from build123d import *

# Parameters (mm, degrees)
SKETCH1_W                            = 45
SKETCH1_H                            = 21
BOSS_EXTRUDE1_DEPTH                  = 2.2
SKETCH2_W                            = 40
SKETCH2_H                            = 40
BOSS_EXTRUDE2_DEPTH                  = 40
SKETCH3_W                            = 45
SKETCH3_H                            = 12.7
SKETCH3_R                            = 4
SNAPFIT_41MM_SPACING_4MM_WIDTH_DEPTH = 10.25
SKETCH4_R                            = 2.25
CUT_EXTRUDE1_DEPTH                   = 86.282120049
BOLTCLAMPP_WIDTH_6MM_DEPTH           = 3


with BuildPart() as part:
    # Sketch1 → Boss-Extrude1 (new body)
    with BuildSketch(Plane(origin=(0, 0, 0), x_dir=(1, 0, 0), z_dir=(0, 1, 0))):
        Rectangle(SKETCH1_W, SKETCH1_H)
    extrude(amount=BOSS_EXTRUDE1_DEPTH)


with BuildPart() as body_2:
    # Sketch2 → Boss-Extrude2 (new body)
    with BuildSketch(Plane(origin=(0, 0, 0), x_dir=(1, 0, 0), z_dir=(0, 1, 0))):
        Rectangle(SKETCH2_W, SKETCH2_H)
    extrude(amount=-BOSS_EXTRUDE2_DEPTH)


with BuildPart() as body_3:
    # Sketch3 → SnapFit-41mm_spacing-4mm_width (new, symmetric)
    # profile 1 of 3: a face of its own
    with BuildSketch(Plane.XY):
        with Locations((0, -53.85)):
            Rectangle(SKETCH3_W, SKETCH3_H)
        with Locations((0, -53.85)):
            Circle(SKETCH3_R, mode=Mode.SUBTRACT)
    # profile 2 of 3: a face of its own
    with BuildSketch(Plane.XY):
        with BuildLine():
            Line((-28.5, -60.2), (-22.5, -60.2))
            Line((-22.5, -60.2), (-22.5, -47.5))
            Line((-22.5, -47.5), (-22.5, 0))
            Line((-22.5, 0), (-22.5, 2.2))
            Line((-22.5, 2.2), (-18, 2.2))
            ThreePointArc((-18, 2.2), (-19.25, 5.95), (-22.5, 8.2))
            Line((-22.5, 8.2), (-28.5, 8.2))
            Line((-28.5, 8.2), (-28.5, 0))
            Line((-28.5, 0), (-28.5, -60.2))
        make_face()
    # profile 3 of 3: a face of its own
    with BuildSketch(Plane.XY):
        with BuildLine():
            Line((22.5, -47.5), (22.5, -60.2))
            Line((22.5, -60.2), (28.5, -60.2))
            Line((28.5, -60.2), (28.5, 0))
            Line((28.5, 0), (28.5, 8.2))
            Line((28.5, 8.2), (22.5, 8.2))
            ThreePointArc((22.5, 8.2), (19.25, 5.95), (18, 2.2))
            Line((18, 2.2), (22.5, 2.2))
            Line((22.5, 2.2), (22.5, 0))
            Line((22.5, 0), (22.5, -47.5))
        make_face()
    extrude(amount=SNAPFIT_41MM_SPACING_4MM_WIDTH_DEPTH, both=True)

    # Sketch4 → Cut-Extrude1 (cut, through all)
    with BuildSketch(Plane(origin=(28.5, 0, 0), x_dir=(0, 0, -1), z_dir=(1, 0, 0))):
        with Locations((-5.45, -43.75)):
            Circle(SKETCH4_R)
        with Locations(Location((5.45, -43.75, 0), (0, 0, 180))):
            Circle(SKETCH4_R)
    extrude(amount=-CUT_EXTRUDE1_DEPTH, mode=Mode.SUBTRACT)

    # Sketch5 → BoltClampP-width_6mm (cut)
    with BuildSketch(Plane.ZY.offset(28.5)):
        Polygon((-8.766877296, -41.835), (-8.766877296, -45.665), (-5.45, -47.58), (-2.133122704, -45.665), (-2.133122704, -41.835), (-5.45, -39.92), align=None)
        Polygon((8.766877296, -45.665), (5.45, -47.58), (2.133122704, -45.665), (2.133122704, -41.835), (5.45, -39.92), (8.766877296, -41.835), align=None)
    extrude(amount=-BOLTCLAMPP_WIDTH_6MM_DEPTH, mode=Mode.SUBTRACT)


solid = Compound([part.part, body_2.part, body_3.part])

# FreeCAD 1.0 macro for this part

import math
import FreeCAD as App
import Part
import Sketcher
from FreeCAD import Vector
Q = App.Units.Quantity


def add_polygon(sketch, points):
    """Adds a closed chain of lines whose ends are joined by coincident constraints."""
    first, n = sketch.GeometryCount, len(points)
    for a, b in zip(points, points[1:] + points[:1]):
        sketch.addGeometry(Part.LineSegment(App.Vector(*a, 0), App.Vector(*b, 0)), False)
    for i in range(n):
        sketch.addConstraint(Sketcher.Constraint("Coincident", first + i, 2, first + (i + 1) % n, 1))

doc = App.newDocument("Part")
body = doc.addObject("PartDesign::Body", "Body")

sketch1 = doc.addObject("Sketcher::SketchObject", "Sketch")
body.addObject(sketch1)
sketch1.AttachmentSupport = (doc.XZ_Plane, [""])
sketch1.MapMode = "FlatFace"
add_polygon(sketch1, [(-22, -10), (-22, 10), (22, 10), (22, -10)])
sketch1.addConstraint([
    Sketcher.Constraint("Vertical", 0),
    Sketcher.Constraint("Horizontal", 1),
    Sketcher.Constraint("Vertical", 2),
    Sketcher.Constraint("Horizontal", 3),
    Sketcher.Constraint("Symmetric", 0, 2, 2, 2, -1, 1),
    Sketcher.Constraint("DistanceX", 1, 1, 1, 2, Q("45 mm")),
    Sketcher.Constraint("DistanceY", 0, 1, 0, 2, Q("21 mm")),
])
pad1 = doc.addObject("PartDesign::Pad", "Pad")
body.addObject(pad1)
pad1.Profile = sketch1
pad1.Length = 2.2
pad1.Reversed = True
body2 = doc.addObject("PartDesign::Body", "Body001")

sketch2 = doc.addObject("Sketcher::SketchObject", "Sketch001")
body2.addObject(sketch2)
sketch2.AttachmentSupport = (doc.getObject("XZ_Plane001"), [""])
sketch2.MapMode = "FlatFace"
add_polygon(sketch2, [(-20, -20), (-20, 20), (20, 20), (20, -20)])
sketch2.addConstraint([
    Sketcher.Constraint("Vertical", 0),
    Sketcher.Constraint("Horizontal", 1),
    Sketcher.Constraint("Vertical", 2),
    Sketcher.Constraint("Horizontal", 3),
    Sketcher.Constraint("Symmetric", 0, 2, 2, 2, -1, 1),
    Sketcher.Constraint("Equal", 3, 0),
    Sketcher.Constraint("DistanceX", 1, 1, 1, 2, Q("40 mm")),
])
pad2 = doc.addObject("PartDesign::Pad", "Pad001")
body2.addObject(pad2)
pad2.Profile = sketch2
pad2.Length = 40
body3 = doc.addObject("PartDesign::Body", "Body002")

sketch3 = doc.addObject("Sketcher::SketchObject", "Sketch002")
body3.addObject(sketch3)
sketch3.AttachmentSupport = (doc.getObject("XY_Plane002"), [""])
sketch3.MapMode = "FlatFace"
sketch3.addGeometry([
    Part.LineSegment(Vector(28.5, -60.2, 0), Vector(28.5, 8.2, 0)),
    Part.LineSegment(Vector(28.5, 8.2, 0), Vector(22.5, 8.2, 0)),
    Part.ArcOfCircle(Part.Circle(Vector(24.2, 2.2, 0), Vector(0, 0, 1), 6.2), math.radians(106), math.radians(180)),
    Part.LineSegment(Vector(18, 2.2, 0), Vector(22.5, 2.2, 0)),
    Part.LineSegment(Vector(22.5, 2.2, 0), Vector(22.5, -47.5, 0)),
    Part.LineSegment(Vector(22.5, -47.5, 0), Vector(-22.5, -47.5, 0)),
    Part.LineSegment(Vector(-22.5, -47.5, 0), Vector(-22.5, 2.2, 0)),
    Part.LineSegment(Vector(-22.5, 2.2, 0), Vector(-18, 2.2, 0)),
    Part.ArcOfCircle(Part.Circle(Vector(-24.2, 2.2, 0), Vector(0, 0, 1), 6.2), math.radians(0), math.radians(74)),
    Part.LineSegment(Vector(-22.5, 8.2, 0), Vector(-28.5, 8.2, 0)),
    Part.LineSegment(Vector(-28.5, 8.2, 0), Vector(-28.5, -60.2, 0)),
    Part.LineSegment(Vector(-28.5, -60.2, 0), Vector(28.5, -60.2, 0)),
    Part.Circle(Vector(0, -53.9, 0), Vector(0, 0, 1), 4),
], False)
sketch3.addConstraint([
    Sketcher.Constraint("Coincident", 0, 2, 1, 1),
    Sketcher.Constraint("Coincident", 1, 2, 2, 1),
    Sketcher.Constraint("Coincident", 2, 2, 3, 1),
    Sketcher.Constraint("Coincident", 3, 2, 4, 1),
    Sketcher.Constraint("Coincident", 4, 2, 5, 1),
    Sketcher.Constraint("Coincident", 5, 2, 6, 1),
    Sketcher.Constraint("Coincident", 6, 2, 7, 1),
    Sketcher.Constraint("Coincident", 7, 2, 8, 1),
    Sketcher.Constraint("Coincident", 8, 2, 9, 1),
    Sketcher.Constraint("Coincident", 9, 2, 10, 1),
    Sketcher.Constraint("Coincident", 10, 2, 11, 1),
    Sketcher.Constraint("Coincident", 11, 2, 0, 1),
    Sketcher.Constraint("Vertical", 0),
    Sketcher.Constraint("Horizontal", 1),
    Sketcher.Constraint("Horizontal", 3),
    Sketcher.Constraint("Vertical", 4),
    Sketcher.Constraint("Horizontal", 5),
    Sketcher.Constraint("Vertical", 6),
    Sketcher.Constraint("Horizontal", 7),
    Sketcher.Constraint("Horizontal", 9),
    Sketcher.Constraint("Vertical", 10),
    Sketcher.Constraint("Horizontal", 11),
    Sketcher.Constraint("Equal", 2, 8),
    Sketcher.Constraint("Symmetric", 2, 3, 8, 3, -2),
    Sketcher.Constraint("Symmetric", 3, 2, 6, 2, -2),
    Sketcher.Constraint("Symmetric", 0, 2, 9, 2, -2),
    Sketcher.Constraint("PointOnObject", 12, 3, -2),
    Sketcher.Constraint("Horizontal", 8, 3, 2, 2),
    Sketcher.Constraint("Vertical", 1, 2, 3, 2),
    Sketcher.Constraint("Diameter", 12, Q("8 mm")),
    Sketcher.Constraint("DistanceX", 1, 2, 1, 1, Q("6 mm")),
    Sketcher.Constraint("DistanceX", 5, 2, 5, 1, Q("45 mm")),
    Sketcher.Constraint("Radius", 2, Q("6.25 mm")),
    Sketcher.Constraint("DistanceX", 3, 1, 3, 2, Q("4.5 mm")),
    Sketcher.Constraint("DistanceY", 0, 1, 0, 2, Q("68.4 mm")),
    Sketcher.Constraint("DistanceY", 4, 2, 4, 1, Q("49.7 mm")),
    Sketcher.Constraint("DistanceY", -1, 1, 2, 3, Q("2.2 mm")),
    Sketcher.Constraint("DistanceY", 12, 3, -1, 1, Q("53.85 mm")),
])
pad3 = doc.addObject("PartDesign::Pad", "Pad002")
body3.addObject(pad3)
pad3.Profile = sketch3
pad3.Length = 20.5
pad3.Midplane = True

sketch4 = doc.addObject("Sketcher::SketchObject", "Sketch003")
body3.addObject(sketch4)
sketch4.AttachmentSupport = (doc.getObject("YZ_Plane002"), [""])
sketch4.MapMode = "FlatFace"
sketch4.AttachmentOffset = App.Placement(Vector(0, 0, 28.5), App.Rotation())
sketch4.addGeometry([
    Part.Circle(Vector(-43.8, 5.5, 0), Vector(0, 0, 1), 2.2),
    Part.Circle(Vector(-43.8, -5.5, 0), Vector(0, 0, 1), 2.2),
], False)
sketch4.addConstraint([
    Sketcher.Constraint("Equal", 0, 1),
    Sketcher.Constraint("Symmetric", 0, 3, 1, 3, -1),
    Sketcher.Constraint("Diameter", 0, Q("4.5 mm")),
    Sketcher.Constraint("DistanceY", 1, 3, 0, 3, Q("10.9 mm")),
    Sketcher.Constraint("DistanceX", 0, 3, -1, 1, Q("43.75 mm")),
])
pocket1 = doc.addObject("PartDesign::Pocket", "Pocket")
body3.addObject(pocket1)
pocket1.Profile = sketch4
pocket1.Type = "ThroughAll"

sketch5 = doc.addObject("Sketcher::SketchObject", "Sketch004")
body3.addObject(sketch5)
sketch5.AttachmentSupport = (doc.getObject("YZ_Plane002"), [""])
sketch5.MapMode = "FlatFace"
sketch5.AttachmentOffset = App.Placement(Vector(0, 0, -28.5), App.Rotation())
add_polygon(sketch5, [(-41.8, -8.8), (-45.7, -8.8), (-47.6, -5.5), (-45.7, -2.1), (-41.8, -2.1), (-39.9, -5.5)])
add_polygon(sketch5, [(-47.6, 5.5), (-45.7, 8.8), (-41.8, 8.8), (-39.9, 5.5), (-41.8, 2.1), (-45.7, 2.1)])
sketch5.addConstraint([
    Sketcher.Constraint("Horizontal", 0),
    Sketcher.Constraint("Horizontal", 3),
    Sketcher.Constraint("Horizontal", 7),
    Sketcher.Constraint("Horizontal", 10),
    Sketcher.Constraint("Symmetric", 0, 2, 6, 2, -1),
    Sketcher.Constraint("Symmetric", 4, 2, 8, 2, -1),
    Sketcher.Constraint("Symmetric", 3, 2, 9, 2, -1),
    Sketcher.Constraint("Symmetric", 1, 2, 11, 2, -1),
    Sketcher.Constraint("Parallel", 1, 4),
    Sketcher.Constraint("Parallel", 2, 5),
    Sketcher.Constraint("Parallel", 5, 6),
    Sketcher.Constraint("Parallel", 4, 8),
    Sketcher.Constraint("Parallel", 8, 11),
    Sketcher.Constraint("Horizontal", 1, 2, 4, 2),
    Sketcher.Constraint("Vertical", 0, 2, 2, 2),
    Sketcher.Constraint("Angle", 1, Q("120 deg")),
    Sketcher.Constraint("DistanceX", 0, 2, 0, 1, Q("3.83 mm")),
    Sketcher.Constraint("DistanceY", 2, 2, 6, 2, Q("10.9 mm")),
    Sketcher.Constraint("Distance", 1, Q("3.83 mm")),
    Sketcher.Constraint("DistanceX", 1, 2, -1, 1, Q("47.58 mm")),
])
pocket2 = doc.addObject("PartDesign::Pocket", "Pocket001")
body3.addObject(pocket2)
pocket2.Profile = sketch5
pocket2.Length = 3
pocket2.Reversed = True

doc.recompute()
